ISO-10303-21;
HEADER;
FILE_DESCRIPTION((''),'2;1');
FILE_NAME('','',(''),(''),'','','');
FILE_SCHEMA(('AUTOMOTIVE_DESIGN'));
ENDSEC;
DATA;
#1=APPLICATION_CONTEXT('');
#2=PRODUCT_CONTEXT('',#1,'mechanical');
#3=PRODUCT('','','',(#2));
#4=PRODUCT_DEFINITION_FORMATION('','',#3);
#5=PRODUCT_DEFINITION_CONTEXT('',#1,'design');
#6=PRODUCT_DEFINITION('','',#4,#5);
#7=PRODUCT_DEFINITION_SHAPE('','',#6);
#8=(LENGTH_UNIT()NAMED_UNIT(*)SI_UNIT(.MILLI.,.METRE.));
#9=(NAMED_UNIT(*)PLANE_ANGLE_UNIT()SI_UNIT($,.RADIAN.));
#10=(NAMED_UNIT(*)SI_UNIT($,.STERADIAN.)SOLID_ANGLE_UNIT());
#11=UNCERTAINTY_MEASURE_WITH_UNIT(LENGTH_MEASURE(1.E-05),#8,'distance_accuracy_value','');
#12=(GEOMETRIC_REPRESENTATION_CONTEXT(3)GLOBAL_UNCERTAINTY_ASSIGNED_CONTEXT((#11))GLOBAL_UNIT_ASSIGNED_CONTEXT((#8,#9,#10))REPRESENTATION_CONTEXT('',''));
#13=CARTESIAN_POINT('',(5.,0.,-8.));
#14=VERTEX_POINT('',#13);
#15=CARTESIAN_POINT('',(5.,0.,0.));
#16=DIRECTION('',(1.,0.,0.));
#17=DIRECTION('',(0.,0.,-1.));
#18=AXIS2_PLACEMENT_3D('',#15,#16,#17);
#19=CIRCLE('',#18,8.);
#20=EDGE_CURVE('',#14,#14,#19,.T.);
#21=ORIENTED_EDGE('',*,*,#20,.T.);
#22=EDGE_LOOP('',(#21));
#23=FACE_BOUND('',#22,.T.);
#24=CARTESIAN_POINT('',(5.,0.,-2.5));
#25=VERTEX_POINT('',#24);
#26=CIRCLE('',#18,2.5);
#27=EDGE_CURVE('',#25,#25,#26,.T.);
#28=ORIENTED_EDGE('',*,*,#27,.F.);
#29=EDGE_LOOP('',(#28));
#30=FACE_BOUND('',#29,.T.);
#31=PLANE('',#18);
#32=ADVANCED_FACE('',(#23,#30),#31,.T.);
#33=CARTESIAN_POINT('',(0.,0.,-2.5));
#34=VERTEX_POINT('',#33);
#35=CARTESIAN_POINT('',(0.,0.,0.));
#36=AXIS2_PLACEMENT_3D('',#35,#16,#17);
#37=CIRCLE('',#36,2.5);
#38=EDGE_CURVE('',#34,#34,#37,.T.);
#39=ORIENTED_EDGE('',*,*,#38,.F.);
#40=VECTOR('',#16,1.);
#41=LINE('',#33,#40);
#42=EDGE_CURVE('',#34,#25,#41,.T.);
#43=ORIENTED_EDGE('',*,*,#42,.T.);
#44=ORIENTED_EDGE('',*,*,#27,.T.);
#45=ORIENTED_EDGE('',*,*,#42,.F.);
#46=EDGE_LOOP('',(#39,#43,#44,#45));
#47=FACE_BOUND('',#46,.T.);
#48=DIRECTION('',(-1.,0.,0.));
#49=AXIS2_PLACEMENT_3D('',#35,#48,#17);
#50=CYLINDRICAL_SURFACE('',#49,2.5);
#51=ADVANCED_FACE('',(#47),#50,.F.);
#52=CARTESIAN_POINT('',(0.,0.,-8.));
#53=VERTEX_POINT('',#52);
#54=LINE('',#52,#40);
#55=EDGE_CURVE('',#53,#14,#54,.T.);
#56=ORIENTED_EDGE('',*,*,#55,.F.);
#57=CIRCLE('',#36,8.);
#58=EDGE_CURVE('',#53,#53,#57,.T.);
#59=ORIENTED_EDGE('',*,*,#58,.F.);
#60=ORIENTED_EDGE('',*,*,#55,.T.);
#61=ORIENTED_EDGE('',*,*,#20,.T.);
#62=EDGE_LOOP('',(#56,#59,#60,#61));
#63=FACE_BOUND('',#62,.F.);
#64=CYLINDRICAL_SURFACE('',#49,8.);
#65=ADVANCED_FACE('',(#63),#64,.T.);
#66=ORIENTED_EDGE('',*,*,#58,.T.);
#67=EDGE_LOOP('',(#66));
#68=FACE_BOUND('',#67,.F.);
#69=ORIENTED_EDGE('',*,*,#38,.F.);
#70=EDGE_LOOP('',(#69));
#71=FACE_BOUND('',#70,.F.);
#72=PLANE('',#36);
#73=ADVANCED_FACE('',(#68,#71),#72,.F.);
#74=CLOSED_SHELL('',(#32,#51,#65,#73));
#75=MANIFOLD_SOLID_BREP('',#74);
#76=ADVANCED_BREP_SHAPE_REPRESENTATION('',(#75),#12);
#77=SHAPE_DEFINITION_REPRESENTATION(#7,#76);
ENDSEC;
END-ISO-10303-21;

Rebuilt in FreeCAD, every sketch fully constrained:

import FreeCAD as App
import Part
import Sketcher
from FreeCAD import Vector

doc = App.newDocument("Part")
body = doc.addObject("PartDesign::Body", "Body")

sketch1 = body.newObject("Sketcher::SketchObject", "Sketch")
sketch1.AttachmentSupport = (doc.getObject("XY_Plane"), [""])
sketch1.MapMode = "FlatFace"
sketch1.addGeometry(Part.Circle(Vector(0, 0, 0), Vector(0, 0, 1), 8), False)
sketch1.addGeometry(Part.Circle(Vector(0, 0, 0), Vector(0, 0, 1), 2.5), False)
sketch1.addConstraint(Sketcher.Constraint("Coincident", 0, 3, -1, 1))
sketch1.addConstraint(Sketcher.Constraint("Coincident", 1, 3, -1, 1))
sketch1.addConstraint(Sketcher.Constraint("Diameter", 0, 16.0))
sketch1.addConstraint(Sketcher.Constraint("Diameter", 1, 5.0))
pad1 = body.newObject("PartDesign::Pad", "Pad")
pad1.Profile = sketch1
pad1.Length = 5
body2 = doc.addObject("PartDesign::Body", "Body001")
doc.recompute()

body.Placement = App.Placement(Vector(0, 0, 0), App.Rotation(Vector(0, -1, 0), 270))
boolean = body2.newObject("PartDesign::Boolean", "Boolean")
boolean.Type = "Fuse"
boolean.addObjects([body])

doc.recompute()
